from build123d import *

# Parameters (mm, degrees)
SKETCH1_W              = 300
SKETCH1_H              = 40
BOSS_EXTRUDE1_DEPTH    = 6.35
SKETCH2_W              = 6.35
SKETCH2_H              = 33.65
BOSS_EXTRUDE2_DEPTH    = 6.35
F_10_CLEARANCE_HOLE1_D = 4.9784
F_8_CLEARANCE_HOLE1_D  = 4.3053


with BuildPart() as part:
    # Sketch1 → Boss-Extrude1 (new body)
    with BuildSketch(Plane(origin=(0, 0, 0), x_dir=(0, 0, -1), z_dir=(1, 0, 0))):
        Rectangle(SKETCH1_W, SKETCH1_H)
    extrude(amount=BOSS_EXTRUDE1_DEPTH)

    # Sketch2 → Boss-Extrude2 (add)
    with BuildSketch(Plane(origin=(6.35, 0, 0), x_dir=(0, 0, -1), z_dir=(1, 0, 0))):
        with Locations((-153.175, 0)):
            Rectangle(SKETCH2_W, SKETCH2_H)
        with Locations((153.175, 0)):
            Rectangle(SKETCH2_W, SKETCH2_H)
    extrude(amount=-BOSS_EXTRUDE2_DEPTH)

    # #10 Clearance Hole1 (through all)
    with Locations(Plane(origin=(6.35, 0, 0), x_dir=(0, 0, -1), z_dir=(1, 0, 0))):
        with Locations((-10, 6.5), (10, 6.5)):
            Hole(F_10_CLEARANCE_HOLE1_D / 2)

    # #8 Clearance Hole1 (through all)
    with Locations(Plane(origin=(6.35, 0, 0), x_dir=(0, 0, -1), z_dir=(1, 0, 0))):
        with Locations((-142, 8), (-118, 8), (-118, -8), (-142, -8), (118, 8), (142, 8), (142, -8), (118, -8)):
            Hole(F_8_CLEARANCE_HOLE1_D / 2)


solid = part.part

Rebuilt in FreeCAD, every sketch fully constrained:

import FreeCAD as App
import Part
import Sketcher
from FreeCAD import Vector
Q = App.Units.Quantity


def add_polygon(sketch, points):
    """Adds a closed chain of lines whose ends are joined by coincident constraints."""
    first, n = sketch.GeometryCount, len(points)
    for a, b in zip(points, points[1:] + points[:1]):
        sketch.addGeometry(Part.LineSegment(App.Vector(*a, 0), App.Vector(*b, 0)), False)
    for i in range(n):
        sketch.addConstraint(Sketcher.Constraint("Coincident", first + i, 2, first + (i + 1) % n, 1))

doc = App.newDocument("Part")
params = doc.addObject("Spreadsheet::Sheet", "Params")
for row, (alias, value) in enumerate([
    ("sketch1_width", "40 mm"),
    ("sketch1_height", "300 mm"),
    ("pad1_length", "6.35 mm"),
    ("sketch2_width", "33.65 mm"),
    ("sketch2_height", "6.35 mm"),
    ("pad2_length", "6.35 mm"),
    ("hole_diameter", "4.9784 mm"),
    ("hole2_diameter", "4.3053 mm"),
], start=1):
    params.set(f"A{row}", alias)
    params.set(f"B{row}", "=" + value)
    params.setAlias(f"B{row}", alias)

body = doc.addObject("PartDesign::Body", "Body")

# Sketch on YZ plane
sketch1 = body.newObject("Sketcher::SketchObject", "Sketch")
sketch1.AttachmentSupport = (doc.getObject("YZ_Plane"), [""])
sketch1.MapMode = "FlatFace"
add_polygon(sketch1, [(20, 150), (-20, 150), (-20, -150), (20, -150)])  # lines 0-3
sketch1.addConstraint(Sketcher.Constraint("Horizontal", 0))
sketch1.addConstraint(Sketcher.Constraint("Vertical", 1))
sketch1.addConstraint(Sketcher.Constraint("Horizontal", 2))
sketch1.addConstraint(Sketcher.Constraint("Vertical", 3))
sketch1.addConstraint(Sketcher.Constraint("Symmetric", 0, 2, 2, 2, -1, 1))
sketch1.addConstraint(Sketcher.Constraint("DistanceX", 0, 2, 0, 1, Q("40 mm")))
sketch1.addConstraint(Sketcher.Constraint("DistanceY", 1, 2, 1, 1, Q("300 mm")))
sketch1.setExpression("Constraints[9]", "Params.sketch1_width")
sketch1.setExpression("Constraints[10]", "Params.sketch1_height")
pad1 = body.newObject("PartDesign::Pad", "Pad")
pad1.Profile = sketch1
pad1.setExpression("Length", "Params.pad1_length")

# Sketch on YZ plane
sketch2 = body.newObject("Sketcher::SketchObject", "Sketch001")
sketch2.AttachmentSupport = (doc.getObject("YZ_Plane"), [""])
sketch2.MapMode = "FlatFace"
sketch2.AttachmentOffset = App.Placement(Vector(0, 0, 6.35), App.Rotation())
add_polygon(sketch2, [(16.825, 156.35), (-16.825, 156.35), (-16.825, 150), (16.825, 150)])  # lines 0-3
add_polygon(sketch2, [(16.825, -150), (-16.825, -150), (-16.825, -156.35), (16.825, -156.35)])  # lines 4-7
sketch2.addConstraint(Sketcher.Constraint("Horizontal", 0))
sketch2.addConstraint(Sketcher.Constraint("Vertical", 1))
sketch2.addConstraint(Sketcher.Constraint("Horizontal", 2))
sketch2.addConstraint(Sketcher.Constraint("Vertical", 3))
sketch2.addConstraint(Sketcher.Constraint("Horizontal", 4))
sketch2.addConstraint(Sketcher.Constraint("Vertical", 5))
sketch2.addConstraint(Sketcher.Constraint("Horizontal", 6))
sketch2.addConstraint(Sketcher.Constraint("Vertical", 7))
sketch2.addConstraint(Sketcher.Constraint("Symmetric", 2, 2, 4, 2, -1, 1))
sketch2.addConstraint(Sketcher.Constraint("Symmetric", 0, 2, 6, 2, -1, 1))
sketch2.addConstraint(Sketcher.Constraint("Vertical", 1, 2, 4, 2))
sketch2.addConstraint(Sketcher.Constraint("DistanceY", -1, 1, 1, 2, Q("150 mm")))
sketch2.addConstraint(Sketcher.Constraint("DistanceX", 0, 2, 0, 1, Q("33.65 mm")))
sketch2.addConstraint(Sketcher.Constraint("DistanceY", 1, 2, 1, 1, Q("6.35 mm")))
sketch2.setExpression("Constraints[20]", "Params.sketch2_width")
sketch2.setExpression("Constraints[21]", "Params.sketch2_height")
pad2 = body.newObject("PartDesign::Pad", "Pad001")
pad2.Profile = sketch2
pad2.setExpression("Length", "Params.pad2_length")
pad2.Reversed = True

# Sketch on YZ plane
sketch3 = body.newObject("Sketcher::SketchObject", "Sketch002")
sketch3.AttachmentSupport = (doc.getObject("YZ_Plane"), [""])
sketch3.MapMode = "FlatFace"
sketch3.AttachmentOffset = App.Placement(Vector(0, 0, 6.35), App.Rotation())
sketch3.addGeometry(Part.Circle(Vector(6.5, 10, 0), Vector(0, 0, 1), 2.4892), False)
sketch3.addGeometry(Part.Circle(Vector(6.5, -10, 0), Vector(0, 0, 1), 2.4892), False)
sketch3.addConstraint(Sketcher.Constraint("Equal", 0, 1))
sketch3.addConstraint(Sketcher.Constraint("Symmetric", 0, 3, 1, 3, -1))
sketch3.addConstraint(Sketcher.Constraint("DistanceY", -1, 1, 0, 3, Q("10 mm")))
sketch3.addConstraint(Sketcher.Constraint("Diameter", 0, Q("4.9784 mm")))
sketch3.addConstraint(Sketcher.Constraint("DistanceX", -1, 1, 0, 3, Q("6.5 mm")))
doc.recompute()
hole = body.newObject("PartDesign::Hole", "Hole")
hole.Profile = sketch3
hole.ThreadType = "None"
hole.setExpression("Diameter", "Params.hole_diameter")
hole.DepthType = "ThroughAll"

# Sketch on YZ plane
sketch4 = body.newObject("Sketcher::SketchObject", "Sketch003")
sketch4.AttachmentSupport = (doc.getObject("YZ_Plane"), [""])
sketch4.MapMode = "FlatFace"
sketch4.AttachmentOffset = App.Placement(Vector(0, 0, 6.35), App.Rotation())
sketch4.addGeometry(Part.Circle(Vector(8, 142, 0), Vector(0, 0, 1), 2.15265), False)
sketch4.addGeometry(Part.Circle(Vector(8, 118, 0), Vector(0, 0, 1), 2.15265), False)
sketch4.addGeometry(Part.Circle(Vector(-8, 118, 0), Vector(0, 0, 1), 2.15265), False)
sketch4.addGeometry(Part.Circle(Vector(-8, 142, 0), Vector(0, 0, 1), 2.15265), False)
sketch4.addGeometry(Part.Circle(Vector(8, -118, 0), Vector(0, 0, 1), 2.15265), False)
sketch4.addGeometry(Part.Circle(Vector(8, -142, 0), Vector(0, 0, 1), 2.15265), False)
sketch4.addGeometry(Part.Circle(Vector(-8, -142, 0), Vector(0, 0, 1), 2.15265), False)
sketch4.addGeometry(Part.Circle(Vector(-8, -118, 0), Vector(0, 0, 1), 2.15265), False)
sketch4.addConstraint(Sketcher.Constraint("Equal", 0, 1))
sketch4.addConstraint(Sketcher.Constraint("Equal", 1, 2))
sketch4.addConstraint(Sketcher.Constraint("Equal", 2, 3))
sketch4.addConstraint(Sketcher.Constraint("Equal", 3, 4))
sketch4.addConstraint(Sketcher.Constraint("Equal", 4, 5))
sketch4.addConstraint(Sketcher.Constraint("Equal", 5, 6))
sketch4.addConstraint(Sketcher.Constraint("Equal", 6, 7))
sketch4.addConstraint(Sketcher.Constraint("Symmetric", 2, 3, 4, 3, -1, 1))
sketch4.addConstraint(Sketcher.Constraint("Symmetric", 3, 3, 5, 3, -1, 1))
sketch4.addConstraint(Sketcher.Constraint("Symmetric", 0, 3, 6, 3, -1, 1))
sketch4.addConstraint(Sketcher.Constraint("Symmetric", 1, 3, 7, 3, -1, 1))
sketch4.addConstraint(Sketcher.Constraint("Symmetric", 1, 3, 2, 3, -2))
sketch4.addConstraint(Sketcher.Constraint("Symmetric", 0, 3, 3, 3, -2))
sketch4.addConstraint(Sketcher.Constraint("Vertical", 0, 3, 1, 3))
sketch4.addConstraint(Sketcher.Constraint("DistanceX", -1, 1, 0, 3, Q("8 mm")))
sketch4.addConstraint(Sketcher.Constraint("DistanceY", -1, 1, 0, 3, Q("142 mm")))
sketch4.addConstraint(Sketcher.Constraint("DistanceY", -1, 1, 1, 3, Q("118 mm")))
sketch4.addConstraint(Sketcher.Constraint("Diameter", 0, Q("4.3053 mm")))
doc.recompute()
hole2 = body.newObject("PartDesign::Hole", "Hole001")
hole2.Profile = sketch4
hole2.ThreadType = "None"
hole2.setExpression("Diameter", "Params.hole2_diameter")
hole2.DepthType = "ThroughAll"

doc.recompute()
